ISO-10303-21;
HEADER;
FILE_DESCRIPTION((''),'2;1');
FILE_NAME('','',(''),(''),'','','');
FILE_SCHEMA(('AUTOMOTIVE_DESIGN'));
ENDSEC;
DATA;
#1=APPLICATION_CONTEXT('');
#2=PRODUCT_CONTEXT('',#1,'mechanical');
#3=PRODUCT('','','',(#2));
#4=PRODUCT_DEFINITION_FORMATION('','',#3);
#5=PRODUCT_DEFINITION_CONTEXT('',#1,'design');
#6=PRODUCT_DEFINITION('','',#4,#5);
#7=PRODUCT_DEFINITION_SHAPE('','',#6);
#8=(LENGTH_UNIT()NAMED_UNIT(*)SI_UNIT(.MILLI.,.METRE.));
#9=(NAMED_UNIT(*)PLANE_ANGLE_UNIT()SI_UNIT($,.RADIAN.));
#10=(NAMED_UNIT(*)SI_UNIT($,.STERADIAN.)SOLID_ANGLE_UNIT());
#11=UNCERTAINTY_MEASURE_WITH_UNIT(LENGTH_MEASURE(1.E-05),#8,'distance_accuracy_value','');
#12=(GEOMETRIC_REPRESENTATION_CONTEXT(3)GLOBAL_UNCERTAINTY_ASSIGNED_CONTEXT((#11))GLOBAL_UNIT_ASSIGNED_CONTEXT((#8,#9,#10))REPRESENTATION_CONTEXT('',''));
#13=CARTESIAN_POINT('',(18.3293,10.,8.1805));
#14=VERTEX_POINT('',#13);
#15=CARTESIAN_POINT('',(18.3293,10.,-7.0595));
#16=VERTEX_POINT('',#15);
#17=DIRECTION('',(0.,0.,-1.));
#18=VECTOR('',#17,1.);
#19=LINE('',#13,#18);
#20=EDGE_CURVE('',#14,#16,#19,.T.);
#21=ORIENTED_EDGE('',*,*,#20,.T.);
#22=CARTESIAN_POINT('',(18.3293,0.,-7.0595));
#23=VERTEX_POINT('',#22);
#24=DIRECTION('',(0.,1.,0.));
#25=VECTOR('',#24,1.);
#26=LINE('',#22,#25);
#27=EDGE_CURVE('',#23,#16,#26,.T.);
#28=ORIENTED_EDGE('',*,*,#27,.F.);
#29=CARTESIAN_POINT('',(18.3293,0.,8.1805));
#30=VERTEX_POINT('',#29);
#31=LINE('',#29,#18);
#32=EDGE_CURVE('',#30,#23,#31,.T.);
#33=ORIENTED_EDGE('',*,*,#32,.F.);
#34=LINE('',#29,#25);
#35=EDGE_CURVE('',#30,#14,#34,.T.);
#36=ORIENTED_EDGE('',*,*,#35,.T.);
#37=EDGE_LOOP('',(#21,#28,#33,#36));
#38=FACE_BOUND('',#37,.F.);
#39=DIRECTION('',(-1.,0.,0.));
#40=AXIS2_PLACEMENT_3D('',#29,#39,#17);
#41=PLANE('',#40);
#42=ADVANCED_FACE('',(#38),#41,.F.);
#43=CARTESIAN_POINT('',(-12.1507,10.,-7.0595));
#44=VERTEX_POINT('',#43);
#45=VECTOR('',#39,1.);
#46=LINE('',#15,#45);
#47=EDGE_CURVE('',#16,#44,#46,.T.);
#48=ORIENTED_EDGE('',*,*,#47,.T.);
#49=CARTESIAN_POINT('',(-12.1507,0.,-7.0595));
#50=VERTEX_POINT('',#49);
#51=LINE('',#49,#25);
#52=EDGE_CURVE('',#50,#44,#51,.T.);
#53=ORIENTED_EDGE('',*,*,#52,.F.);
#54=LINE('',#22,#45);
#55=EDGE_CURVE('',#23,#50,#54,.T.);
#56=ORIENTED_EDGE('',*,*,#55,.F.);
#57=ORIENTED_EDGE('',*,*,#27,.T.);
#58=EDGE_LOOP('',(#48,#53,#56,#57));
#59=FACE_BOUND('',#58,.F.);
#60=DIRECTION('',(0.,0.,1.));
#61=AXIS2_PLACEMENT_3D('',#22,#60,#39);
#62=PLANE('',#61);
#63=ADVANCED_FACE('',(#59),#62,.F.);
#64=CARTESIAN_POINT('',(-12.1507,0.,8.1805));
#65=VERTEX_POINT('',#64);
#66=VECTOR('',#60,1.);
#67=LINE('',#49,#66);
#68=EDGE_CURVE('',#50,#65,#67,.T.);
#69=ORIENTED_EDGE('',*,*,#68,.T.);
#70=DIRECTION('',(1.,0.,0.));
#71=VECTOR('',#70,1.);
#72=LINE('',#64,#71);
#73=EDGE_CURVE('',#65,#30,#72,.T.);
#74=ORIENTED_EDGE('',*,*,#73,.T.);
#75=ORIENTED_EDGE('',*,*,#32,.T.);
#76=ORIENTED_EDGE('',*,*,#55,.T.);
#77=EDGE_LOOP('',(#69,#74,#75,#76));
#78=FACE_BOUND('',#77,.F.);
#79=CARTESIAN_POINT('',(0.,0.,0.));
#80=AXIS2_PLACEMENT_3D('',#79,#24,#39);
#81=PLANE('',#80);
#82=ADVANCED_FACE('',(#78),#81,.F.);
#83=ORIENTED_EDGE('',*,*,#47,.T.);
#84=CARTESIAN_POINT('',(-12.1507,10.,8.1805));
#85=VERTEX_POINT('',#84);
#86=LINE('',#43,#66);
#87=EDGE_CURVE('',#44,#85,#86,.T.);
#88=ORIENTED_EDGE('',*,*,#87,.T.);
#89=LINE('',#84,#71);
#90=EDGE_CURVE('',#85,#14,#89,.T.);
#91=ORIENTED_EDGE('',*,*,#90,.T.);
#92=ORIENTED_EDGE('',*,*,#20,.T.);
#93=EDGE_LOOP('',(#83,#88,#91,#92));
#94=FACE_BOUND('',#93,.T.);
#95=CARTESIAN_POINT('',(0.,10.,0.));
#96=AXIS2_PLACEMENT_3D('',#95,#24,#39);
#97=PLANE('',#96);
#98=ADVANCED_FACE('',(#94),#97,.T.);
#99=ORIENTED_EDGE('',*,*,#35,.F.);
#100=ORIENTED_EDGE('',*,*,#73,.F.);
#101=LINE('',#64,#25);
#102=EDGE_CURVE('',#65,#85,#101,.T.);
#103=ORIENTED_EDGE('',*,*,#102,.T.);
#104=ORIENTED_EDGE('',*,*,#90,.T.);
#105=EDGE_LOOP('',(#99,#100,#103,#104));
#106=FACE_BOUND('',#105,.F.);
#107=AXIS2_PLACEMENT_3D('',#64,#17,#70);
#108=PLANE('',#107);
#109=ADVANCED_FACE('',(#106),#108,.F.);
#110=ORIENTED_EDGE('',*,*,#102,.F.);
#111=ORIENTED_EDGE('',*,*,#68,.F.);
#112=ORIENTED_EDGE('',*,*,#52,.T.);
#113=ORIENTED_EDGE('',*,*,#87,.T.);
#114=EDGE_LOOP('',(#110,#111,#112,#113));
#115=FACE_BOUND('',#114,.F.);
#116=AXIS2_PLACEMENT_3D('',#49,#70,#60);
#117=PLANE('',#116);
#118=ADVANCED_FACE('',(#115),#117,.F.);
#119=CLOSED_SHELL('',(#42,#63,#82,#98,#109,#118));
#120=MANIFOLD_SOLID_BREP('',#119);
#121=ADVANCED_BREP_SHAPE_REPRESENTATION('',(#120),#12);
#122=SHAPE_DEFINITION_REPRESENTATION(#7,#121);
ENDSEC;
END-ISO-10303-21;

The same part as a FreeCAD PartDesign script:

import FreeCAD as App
import Part
import Sketcher
Q = App.Units.Quantity


def add_polygon(sketch, points):
    """Adds a closed chain of lines whose ends are joined by coincident constraints."""
    first, n = sketch.GeometryCount, len(points)
    for a, b in zip(points, points[1:] + points[:1]):
        sketch.addGeometry(Part.LineSegment(App.Vector(*a, 0), App.Vector(*b, 0)), False)
    for i in range(n):
        sketch.addConstraint(Sketcher.Constraint("Coincident", first + i, 2, first + (i + 1) % n, 1))

doc = App.newDocument("Part")
body = doc.addObject("PartDesign::Body", "Body")

# Sketch on XZ plane
sketch1 = body.newObject("Sketcher::SketchObject", "Sketch")
sketch1.AttachmentSupport = (doc.getObject("XZ_Plane"), [""])
sketch1.MapMode = "FlatFace"
add_polygon(sketch1, [(-12, -7), (-12, 8), (18, 8), (18, -7)])  # lines 0-3
sketch1.addConstraint([
    Sketcher.Constraint("Vertical", 0),
    Sketcher.Constraint("Horizontal", 1),
    Sketcher.Constraint("Vertical", 2),
    Sketcher.Constraint("Horizontal", 3),
    Sketcher.Constraint("DistanceX", 1, 1, 1, 2, Q("1.2 in")),
    Sketcher.Constraint("DistanceY", 0, 1, 0, 2, Q("0.6 in")),
    Sketcher.Constraint("DistanceX", 0, 2, -1, 1, Q("12.1507 mm")),
    Sketcher.Constraint("DistanceY", -1, 1, 0, 2, Q("8.1805 mm")),
])
pad1 = body.newObject("PartDesign::Pad", "Pad")
pad1.Profile = sketch1
pad1.Length = Q("0.3937008 in")
pad1.Reversed = True

doc.recompute()
